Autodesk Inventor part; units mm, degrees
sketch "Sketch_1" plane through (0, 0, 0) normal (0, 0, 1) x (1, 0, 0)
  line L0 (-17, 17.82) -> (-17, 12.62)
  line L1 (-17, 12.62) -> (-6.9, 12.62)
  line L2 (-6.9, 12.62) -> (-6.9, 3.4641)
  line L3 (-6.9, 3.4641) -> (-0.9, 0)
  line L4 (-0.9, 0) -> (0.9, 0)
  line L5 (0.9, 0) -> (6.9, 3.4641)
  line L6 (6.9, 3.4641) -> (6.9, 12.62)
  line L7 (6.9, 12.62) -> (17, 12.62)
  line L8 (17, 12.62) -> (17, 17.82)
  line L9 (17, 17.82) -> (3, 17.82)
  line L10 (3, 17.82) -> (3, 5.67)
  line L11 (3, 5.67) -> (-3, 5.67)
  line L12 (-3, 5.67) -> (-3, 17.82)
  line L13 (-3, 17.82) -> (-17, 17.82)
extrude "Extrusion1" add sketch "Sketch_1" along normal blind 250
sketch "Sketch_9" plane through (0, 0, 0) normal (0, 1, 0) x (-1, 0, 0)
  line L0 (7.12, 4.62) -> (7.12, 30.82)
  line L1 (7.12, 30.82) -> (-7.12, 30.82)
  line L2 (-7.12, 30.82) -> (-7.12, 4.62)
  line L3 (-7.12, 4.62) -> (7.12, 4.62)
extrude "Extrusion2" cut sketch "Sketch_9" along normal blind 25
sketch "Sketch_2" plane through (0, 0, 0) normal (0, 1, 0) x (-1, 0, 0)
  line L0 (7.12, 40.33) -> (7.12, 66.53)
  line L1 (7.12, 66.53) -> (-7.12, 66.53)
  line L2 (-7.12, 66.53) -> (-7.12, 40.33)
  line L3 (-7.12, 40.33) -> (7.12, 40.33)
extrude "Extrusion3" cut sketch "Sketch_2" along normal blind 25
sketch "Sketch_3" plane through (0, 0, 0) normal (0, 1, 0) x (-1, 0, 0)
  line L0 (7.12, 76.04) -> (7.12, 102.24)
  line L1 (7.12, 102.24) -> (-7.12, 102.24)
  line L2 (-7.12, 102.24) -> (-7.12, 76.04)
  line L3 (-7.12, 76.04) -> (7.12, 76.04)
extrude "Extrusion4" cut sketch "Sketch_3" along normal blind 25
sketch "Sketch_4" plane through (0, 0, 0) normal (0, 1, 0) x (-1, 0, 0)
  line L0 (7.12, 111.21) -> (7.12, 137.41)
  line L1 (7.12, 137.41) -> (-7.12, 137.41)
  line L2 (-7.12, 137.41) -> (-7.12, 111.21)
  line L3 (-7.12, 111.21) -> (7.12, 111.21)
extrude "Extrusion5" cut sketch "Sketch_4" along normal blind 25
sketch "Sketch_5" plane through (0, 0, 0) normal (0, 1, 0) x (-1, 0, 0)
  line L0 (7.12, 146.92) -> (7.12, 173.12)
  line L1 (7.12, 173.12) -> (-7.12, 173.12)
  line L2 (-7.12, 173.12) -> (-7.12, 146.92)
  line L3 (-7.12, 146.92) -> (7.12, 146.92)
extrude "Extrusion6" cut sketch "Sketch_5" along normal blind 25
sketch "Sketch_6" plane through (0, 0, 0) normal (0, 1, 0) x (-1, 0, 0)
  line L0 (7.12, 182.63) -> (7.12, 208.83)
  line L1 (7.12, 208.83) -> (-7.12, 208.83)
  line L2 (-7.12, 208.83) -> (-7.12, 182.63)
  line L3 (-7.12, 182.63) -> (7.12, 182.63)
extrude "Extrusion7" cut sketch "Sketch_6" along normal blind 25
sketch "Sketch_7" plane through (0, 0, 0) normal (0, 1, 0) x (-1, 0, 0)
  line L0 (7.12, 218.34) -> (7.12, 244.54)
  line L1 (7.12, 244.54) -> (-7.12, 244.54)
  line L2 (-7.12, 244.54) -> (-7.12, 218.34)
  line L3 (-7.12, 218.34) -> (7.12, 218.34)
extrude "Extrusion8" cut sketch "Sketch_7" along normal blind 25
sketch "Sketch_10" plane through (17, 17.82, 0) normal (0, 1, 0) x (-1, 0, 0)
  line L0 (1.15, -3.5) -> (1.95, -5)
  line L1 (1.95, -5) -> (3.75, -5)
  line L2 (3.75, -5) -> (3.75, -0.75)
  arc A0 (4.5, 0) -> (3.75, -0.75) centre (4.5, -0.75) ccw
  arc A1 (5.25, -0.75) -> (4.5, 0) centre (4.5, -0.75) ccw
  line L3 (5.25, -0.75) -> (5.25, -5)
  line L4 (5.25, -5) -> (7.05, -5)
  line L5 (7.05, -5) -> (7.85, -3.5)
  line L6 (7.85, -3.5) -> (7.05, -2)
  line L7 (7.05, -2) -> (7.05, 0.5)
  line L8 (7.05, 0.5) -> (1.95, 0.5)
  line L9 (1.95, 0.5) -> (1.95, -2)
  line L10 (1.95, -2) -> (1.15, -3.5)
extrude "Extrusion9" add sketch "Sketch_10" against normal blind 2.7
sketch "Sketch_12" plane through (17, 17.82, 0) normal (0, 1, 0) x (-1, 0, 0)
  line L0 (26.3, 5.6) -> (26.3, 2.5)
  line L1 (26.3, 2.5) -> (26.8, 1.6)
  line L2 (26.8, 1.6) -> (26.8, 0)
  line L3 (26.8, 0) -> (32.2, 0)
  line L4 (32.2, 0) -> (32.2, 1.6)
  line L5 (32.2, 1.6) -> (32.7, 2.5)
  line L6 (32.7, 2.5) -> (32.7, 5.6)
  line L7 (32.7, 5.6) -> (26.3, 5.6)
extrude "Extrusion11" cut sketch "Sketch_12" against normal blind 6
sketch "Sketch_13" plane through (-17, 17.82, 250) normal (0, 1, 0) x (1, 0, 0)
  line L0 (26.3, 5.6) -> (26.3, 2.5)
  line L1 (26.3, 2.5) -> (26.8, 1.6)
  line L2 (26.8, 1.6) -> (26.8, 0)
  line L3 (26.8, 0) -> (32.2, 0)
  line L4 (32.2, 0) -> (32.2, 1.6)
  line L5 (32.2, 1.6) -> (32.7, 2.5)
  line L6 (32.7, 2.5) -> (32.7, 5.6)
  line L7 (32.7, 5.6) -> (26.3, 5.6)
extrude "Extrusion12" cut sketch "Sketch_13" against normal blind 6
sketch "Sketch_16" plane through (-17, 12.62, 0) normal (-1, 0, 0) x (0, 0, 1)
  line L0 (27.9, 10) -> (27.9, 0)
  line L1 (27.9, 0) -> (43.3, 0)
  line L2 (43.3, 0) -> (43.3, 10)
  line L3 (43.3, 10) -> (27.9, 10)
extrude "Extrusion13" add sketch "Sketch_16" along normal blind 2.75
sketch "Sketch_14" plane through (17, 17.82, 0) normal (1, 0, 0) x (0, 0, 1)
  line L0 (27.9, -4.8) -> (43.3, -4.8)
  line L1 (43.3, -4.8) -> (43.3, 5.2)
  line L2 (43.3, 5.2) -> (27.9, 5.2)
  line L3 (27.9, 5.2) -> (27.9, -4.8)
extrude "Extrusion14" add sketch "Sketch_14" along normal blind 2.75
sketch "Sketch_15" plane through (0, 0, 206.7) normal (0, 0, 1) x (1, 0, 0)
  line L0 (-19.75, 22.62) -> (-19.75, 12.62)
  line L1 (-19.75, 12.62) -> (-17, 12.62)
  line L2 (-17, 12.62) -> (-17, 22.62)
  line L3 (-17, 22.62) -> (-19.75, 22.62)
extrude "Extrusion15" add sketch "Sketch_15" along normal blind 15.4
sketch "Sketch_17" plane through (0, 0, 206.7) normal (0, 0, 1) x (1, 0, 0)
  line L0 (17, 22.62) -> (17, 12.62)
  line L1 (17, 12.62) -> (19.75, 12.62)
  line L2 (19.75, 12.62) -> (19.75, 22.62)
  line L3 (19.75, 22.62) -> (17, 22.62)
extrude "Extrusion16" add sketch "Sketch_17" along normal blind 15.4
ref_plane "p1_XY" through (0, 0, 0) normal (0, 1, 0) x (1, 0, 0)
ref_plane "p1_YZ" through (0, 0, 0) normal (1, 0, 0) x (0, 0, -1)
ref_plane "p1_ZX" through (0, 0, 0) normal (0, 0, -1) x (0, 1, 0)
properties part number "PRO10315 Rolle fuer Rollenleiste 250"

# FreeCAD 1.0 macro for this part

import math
import FreeCAD as App
import Part
import Sketcher

V = App.Vector
Q = App.Units.Quantity

doc = App.newDocument("Part")
params = doc.addObject("Spreadsheet::Sheet", "Params")
for row, (alias, value) in enumerate([
    ("sketch1_width", "14 mm"),
    ("sketch1_width2", "6 mm"),
    ("sketch1_width3", "10.1 mm"),
    ("sketch1_width4", "1.8 mm"),
    ("sketch1_height", "5.2 mm"),
    ("pad1_length", "250 mm"),
    ("sketch2_height", "26.2 mm"),
    ("sketch2_width", "14.24 mm"),
    ("pocket1_length", "25 mm"),
    ("sketch3_height", "26.2 mm"),
    ("sketch3_width", "14.24 mm"),
    ("pocket2_length", "25 mm"),
    ("sketch4_height", "26.2 mm"),
    ("sketch4_width", "14.24 mm"),
    ("pocket3_length", "25 mm"),
    ("sketch5_height", "26.2 mm"),
    ("sketch5_width", "14.24 mm"),
    ("pocket4_length", "25 mm"),
    ("sketch6_height", "26.2 mm"),
    ("sketch6_width", "14.24 mm"),
    ("pocket5_length", "25 mm"),
    ("sketch7_height", "26.2 mm"),
    ("sketch7_width", "14.24 mm"),
    ("pocket6_length", "25 mm"),
    ("sketch8_height", "26.2 mm"),
    ("sketch8_width", "14.24 mm"),
    ("pocket7_length", "25 mm"),
    ("sketch9_radius", "0.75 mm"),
    ("sketch9_width", "1.8 mm"),
    ("sketch9_height", "2.5 mm"),
    ("sketch9_length", "1.7 mm"),
    ("sketch9_height2", "4.25 mm"),
    ("pad2_length", "2.7 mm"),
    ("sketch10_width", "6.4 mm"),
    ("sketch10_width2", "5.4 mm"),
    ("sketch10_height", "3.1 mm"),
    ("sketch10_height2", "1.6 mm"),
    ("pocket8_length", "6 mm"),
    ("sketch11_width", "6.4 mm"),
    ("sketch11_width2", "5.4 mm"),
    ("sketch11_height", "3.1 mm"),
    ("sketch11_height2", "1.6 mm"),
    ("pocket9_length", "6 mm"),
    ("sketch12_width", "10 mm"),
    ("sketch12_height", "15.4 mm"),
    ("pad3_length", "2.75 mm"),
    ("sketch13_width", "10 mm"),
    ("sketch13_height", "15.4 mm"),
    ("pad4_length", "2.75 mm"),
    ("sketch14_height", "10 mm"),
    ("sketch14_width", "2.75 mm"),
    ("pad5_length", "15.4 mm"),
    ("sketch15_height", "10 mm"),
    ("sketch15_width", "2.75 mm"),
    ("pad6_length", "15.4 mm"),
], start=1):
    params.set(f"A{row}", alias)
    params.set(f"B{row}", "=" + value)
    params.setAlias(f"B{row}", alias)

body = doc.addObject("PartDesign::Body", "Body")

# Sketch on XY plane
sketch1 = body.newObject("Sketcher::SketchObject", "Sketch")
sketch1.AttachmentSupport = (doc.getObject("XY_Plane"), [""])
sketch1.MapMode = "FlatFace"
sketch1.addGeometry(Part.LineSegment(V(-3, 17.8, 0), V(-17, 17.8, 0)), False)
sketch1.addGeometry(Part.LineSegment(V(-17, 17.8, 0), V(-17, 12.6, 0)), False)
sketch1.addGeometry(Part.LineSegment(V(-17, 12.6, 0), V(-6.9, 12.6, 0)), False)
sketch1.addGeometry(Part.LineSegment(V(-6.9, 12.6, 0), V(-6.9, 3.5, 0)), False)
sketch1.addGeometry(Part.LineSegment(V(-6.9, 3.5, 0), V(-0.9, 0, 0)), False)
sketch1.addGeometry(Part.LineSegment(V(-0.9, 0, 0), V(0.9, 0, 0)), False)
sketch1.addGeometry(Part.LineSegment(V(0.9, 0, 0), V(6.9, 3.5, 0)), False)
sketch1.addGeometry(Part.LineSegment(V(6.9, 3.5, 0), V(6.9, 12.6, 0)), False)
sketch1.addGeometry(Part.LineSegment(V(6.9, 12.6, 0), V(17, 12.6, 0)), False)
sketch1.addGeometry(Part.LineSegment(V(17, 12.6, 0), V(17, 17.8, 0)), False)
sketch1.addGeometry(Part.LineSegment(V(17, 17.8, 0), V(3, 17.8, 0)), False)
sketch1.addGeometry(Part.LineSegment(V(3, 17.8, 0), V(3, 5.7, 0)), False)
sketch1.addGeometry(Part.LineSegment(V(3, 5.7, 0), V(-3, 5.7, 0)), False)
sketch1.addGeometry(Part.LineSegment(V(-3, 5.7, 0), V(-3, 17.8, 0)), False)
sketch1.addConstraint(Sketcher.Constraint("Coincident", 0, 2, 1, 1))
sketch1.addConstraint(Sketcher.Constraint("Coincident", 1, 2, 2, 1))
sketch1.addConstraint(Sketcher.Constraint("Coincident", 2, 2, 3, 1))
sketch1.addConstraint(Sketcher.Constraint("Coincident", 3, 2, 4, 1))
sketch1.addConstraint(Sketcher.Constraint("Coincident", 4, 2, 5, 1))
sketch1.addConstraint(Sketcher.Constraint("Coincident", 5, 2, 6, 1))
sketch1.addConstraint(Sketcher.Constraint("Coincident", 6, 2, 7, 1))
sketch1.addConstraint(Sketcher.Constraint("Coincident", 7, 2, 8, 1))
sketch1.addConstraint(Sketcher.Constraint("Coincident", 8, 2, 9, 1))
sketch1.addConstraint(Sketcher.Constraint("Coincident", 9, 2, 10, 1))
sketch1.addConstraint(Sketcher.Constraint("Coincident", 10, 2, 11, 1))
sketch1.addConstraint(Sketcher.Constraint("Coincident", 11, 2, 12, 1))
sketch1.addConstraint(Sketcher.Constraint("Coincident", 12, 2, 13, 1))
sketch1.addConstraint(Sketcher.Constraint("Coincident", 13, 2, 0, 1))
sketch1.addConstraint(Sketcher.Constraint("Horizontal", 0))
sketch1.addConstraint(Sketcher.Constraint("Vertical", 1))
sketch1.addConstraint(Sketcher.Constraint("Horizontal", 2))
sketch1.addConstraint(Sketcher.Constraint("Vertical", 3))
sketch1.addConstraint(Sketcher.Constraint("Horizontal", 5))
sketch1.addConstraint(Sketcher.Constraint("Vertical", 7))
sketch1.addConstraint(Sketcher.Constraint("Horizontal", 8))
sketch1.addConstraint(Sketcher.Constraint("Vertical", 9))
sketch1.addConstraint(Sketcher.Constraint("Horizontal", 10))
sketch1.addConstraint(Sketcher.Constraint("Vertical", 11))
sketch1.addConstraint(Sketcher.Constraint("Horizontal", 12))
sketch1.addConstraint(Sketcher.Constraint("Vertical", 13))
sketch1.addConstraint(Sketcher.Constraint("Symmetric", 4, 2, 5, 2, -1, 1))
sketch1.addConstraint(Sketcher.Constraint("Symmetric", 3, 2, 6, 2, -2))
sketch1.addConstraint(Sketcher.Constraint("Symmetric", 1, 2, 8, 2, -2))
sketch1.addConstraint(Sketcher.Constraint("Symmetric", 10, 2, 13, 2, -2))
sketch1.addConstraint(Sketcher.Constraint("DistanceX", 0, 2, 0, 1, 14.0))
sketch1.addConstraint(Sketcher.Constraint("DistanceX", 12, 2, 12, 1, 6.0))
sketch1.addConstraint(Sketcher.Constraint("Angle", 4, Q("-30 deg")))
sketch1.addConstraint(Sketcher.Constraint("DistanceX", 2, 1, 2, 2, 10.1))
sketch1.addConstraint(Sketcher.Constraint("DistanceX", 5, 1, 5, 2, 1.8))
sketch1.addConstraint(Sketcher.Constraint("DistanceY", 1, 2, 1, 1, 5.2))
sketch1.addConstraint(Sketcher.Constraint("DistanceY", 11, 2, 11, 1, 12.15))
sketch1.addConstraint(Sketcher.Constraint("DistanceY", 3, 2, 3, 1, 9.156))
sketch1.setExpression("Constraints[30]", "Params.sketch1_width")
sketch1.setExpression("Constraints[31]", "Params.sketch1_width2")
sketch1.setExpression("Constraints[33]", "Params.sketch1_width3")
sketch1.setExpression("Constraints[34]", "Params.sketch1_width4")
sketch1.setExpression("Constraints[35]", "Params.sketch1_height")
pad1 = body.newObject("PartDesign::Pad", "Pad")
pad1.Profile = sketch1
pad1.setExpression("Length", "Params.pad1_length")

# Sketch on XZ plane
sketch2 = body.newObject("Sketcher::SketchObject", "Sketch001")
sketch2.AttachmentSupport = (doc.getObject("XZ_Plane"), [""])
sketch2.MapMode = "FlatFace"
sketch2.addGeometry(Part.LineSegment(V(7, 5, 0), V(-7, 5, 0)), False)
sketch2.addGeometry(Part.LineSegment(V(-7, 5, 0), V(-7, 31, 0)), False)
sketch2.addGeometry(Part.LineSegment(V(-7, 31, 0), V(7, 31, 0)), False)
sketch2.addGeometry(Part.LineSegment(V(7, 31, 0), V(7, 5, 0)), False)
sketch2.addConstraint(Sketcher.Constraint("Coincident", 0, 2, 1, 1))
sketch2.addConstraint(Sketcher.Constraint("Coincident", 1, 2, 2, 1))
sketch2.addConstraint(Sketcher.Constraint("Coincident", 2, 2, 3, 1))
sketch2.addConstraint(Sketcher.Constraint("Coincident", 3, 2, 0, 1))
sketch2.addConstraint(Sketcher.Constraint("Horizontal", 0))
sketch2.addConstraint(Sketcher.Constraint("Vertical", 1))
sketch2.addConstraint(Sketcher.Constraint("Horizontal", 2))
sketch2.addConstraint(Sketcher.Constraint("Vertical", 3))
sketch2.addConstraint(Sketcher.Constraint("DistanceY", 1, 1, 1, 2, 26.2))
sketch2.addConstraint(Sketcher.Constraint("DistanceX", 0, 2, 0, 1, 14.24))
sketch2.addConstraint(Sketcher.Constraint("DistanceX", 0, 2, -1, 1, 7.12))
sketch2.addConstraint(Sketcher.Constraint("DistanceY", -1, 1, 0, 2, 4.62))
sketch2.setExpression("Constraints[8]", "Params.sketch2_height")
sketch2.setExpression("Constraints[9]", "Params.sketch2_width")
pocket1 = body.newObject("PartDesign::Pocket", "Pocket")
pocket1.Profile = sketch2
pocket1.setExpression("Length", "Params.pocket1_length")

# Sketch on XZ plane
sketch3 = body.newObject("Sketcher::SketchObject", "Sketch002")
sketch3.AttachmentSupport = (doc.getObject("XZ_Plane"), [""])
sketch3.MapMode = "FlatFace"
sketch3.addGeometry(Part.LineSegment(V(7, 40, 0), V(-7, 40, 0)), False)
sketch3.addGeometry(Part.LineSegment(V(-7, 40, 0), V(-7, 67, 0)), False)
sketch3.addGeometry(Part.LineSegment(V(-7, 67, 0), V(7, 67, 0)), False)
sketch3.addGeometry(Part.LineSegment(V(7, 67, 0), V(7, 40, 0)), False)
sketch3.addConstraint(Sketcher.Constraint("Coincident", 0, 2, 1, 1))
sketch3.addConstraint(Sketcher.Constraint("Coincident", 1, 2, 2, 1))
sketch3.addConstraint(Sketcher.Constraint("Coincident", 2, 2, 3, 1))
sketch3.addConstraint(Sketcher.Constraint("Coincident", 3, 2, 0, 1))
sketch3.addConstraint(Sketcher.Constraint("Horizontal", 0))
sketch3.addConstraint(Sketcher.Constraint("Vertical", 1))
sketch3.addConstraint(Sketcher.Constraint("Horizontal", 2))
sketch3.addConstraint(Sketcher.Constraint("Vertical", 3))
sketch3.addConstraint(Sketcher.Constraint("DistanceY", 1, 1, 1, 2, 26.2))
sketch3.addConstraint(Sketcher.Constraint("DistanceX", 0, 2, 0, 1, 14.24))
sketch3.addConstraint(Sketcher.Constraint("DistanceX", 0, 2, -1, 1, 7.12))
sketch3.addConstraint(Sketcher.Constraint("DistanceY", -1, 1, 0, 2, 40.33))
sketch3.setExpression("Constraints[8]", "Params.sketch3_height")
sketch3.setExpression("Constraints[9]", "Params.sketch3_width")
pocket2 = body.newObject("PartDesign::Pocket", "Pocket001")
pocket2.Profile = sketch3
pocket2.setExpression("Length", "Params.pocket2_length")

# Sketch on XZ plane
sketch4 = body.newObject("Sketcher::SketchObject", "Sketch003")
sketch4.AttachmentSupport = (doc.getObject("XZ_Plane"), [""])
sketch4.MapMode = "FlatFace"
sketch4.addGeometry(Part.LineSegment(V(7, 76, 0), V(-7, 76, 0)), False)
sketch4.addGeometry(Part.LineSegment(V(-7, 76, 0), V(-7, 102, 0)), False)
sketch4.addGeometry(Part.LineSegment(V(-7, 102, 0), V(7, 102, 0)), False)
sketch4.addGeometry(Part.LineSegment(V(7, 102, 0), V(7, 76, 0)), False)
sketch4.addConstraint(Sketcher.Constraint("Coincident", 0, 2, 1, 1))
sketch4.addConstraint(Sketcher.Constraint("Coincident", 1, 2, 2, 1))
sketch4.addConstraint(Sketcher.Constraint("Coincident", 2, 2, 3, 1))
sketch4.addConstraint(Sketcher.Constraint("Coincident", 3, 2, 0, 1))
sketch4.addConstraint(Sketcher.Constraint("Horizontal", 0))
sketch4.addConstraint(Sketcher.Constraint("Vertical", 1))
sketch4.addConstraint(Sketcher.Constraint("Horizontal", 2))
sketch4.addConstraint(Sketcher.Constraint("Vertical", 3))
sketch4.addConstraint(Sketcher.Constraint("DistanceY", 1, 1, 1, 2, 26.2))
sketch4.addConstraint(Sketcher.Constraint("DistanceX", 0, 2, 0, 1, 14.24))
sketch4.addConstraint(Sketcher.Constraint("DistanceX", 0, 2, -1, 1, 7.12))
sketch4.addConstraint(Sketcher.Constraint("DistanceY", -1, 1, 0, 2, 76.04))
sketch4.setExpression("Constraints[8]", "Params.sketch4_height")
sketch4.setExpression("Constraints[9]", "Params.sketch4_width")
pocket3 = body.newObject("PartDesign::Pocket", "Pocket002")
pocket3.Profile = sketch4
pocket3.setExpression("Length", "Params.pocket3_length")

# Sketch on XZ plane
sketch5 = body.newObject("Sketcher::SketchObject", "Sketch004")
sketch5.AttachmentSupport = (doc.getObject("XZ_Plane"), [""])
sketch5.MapMode = "FlatFace"
sketch5.addGeometry(Part.LineSegment(V(7, 111, 0), V(-7, 111, 0)), False)
sketch5.addGeometry(Part.LineSegment(V(-7, 111, 0), V(-7, 137, 0)), False)
sketch5.addGeometry(Part.LineSegment(V(-7, 137, 0), V(7, 137, 0)), False)
sketch5.addGeometry(Part.LineSegment(V(7, 137, 0), V(7, 111, 0)), False)
sketch5.addConstraint(Sketcher.Constraint("Coincident", 0, 2, 1, 1))
sketch5.addConstraint(Sketcher.Constraint("Coincident", 1, 2, 2, 1))
sketch5.addConstraint(Sketcher.Constraint("Coincident", 2, 2, 3, 1))
sketch5.addConstraint(Sketcher.Constraint("Coincident", 3, 2, 0, 1))
sketch5.addConstraint(Sketcher.Constraint("Horizontal", 0))
sketch5.addConstraint(Sketcher.Constraint("Vertical", 1))
sketch5.addConstraint(Sketcher.Constraint("Horizontal", 2))
sketch5.addConstraint(Sketcher.Constraint("Vertical", 3))
sketch5.addConstraint(Sketcher.Constraint("DistanceY", 1, 1, 1, 2, 26.2))
sketch5.addConstraint(Sketcher.Constraint("DistanceX", 0, 2, 0, 1, 14.24))
sketch5.addConstraint(Sketcher.Constraint("DistanceX", 0, 2, -1, 1, 7.12))
sketch5.addConstraint(Sketcher.Constraint("DistanceY", -1, 1, 0, 2, 111.21))
sketch5.setExpression("Constraints[8]", "Params.sketch5_height")
sketch5.setExpression("Constraints[9]", "Params.sketch5_width")
pocket4 = body.newObject("PartDesign::Pocket", "Pocket003")
pocket4.Profile = sketch5
pocket4.setExpression("Length", "Params.pocket4_length")

# Sketch on XZ plane
sketch6 = body.newObject("Sketcher::SketchObject", "Sketch005")
sketch6.AttachmentSupport = (doc.getObject("XZ_Plane"), [""])
sketch6.MapMode = "FlatFace"
sketch6.addGeometry(Part.LineSegment(V(7, 147, 0), V(-7, 147, 0)), False)
sketch6.addGeometry(Part.LineSegment(V(-7, 147, 0), V(-7, 173, 0)), False)
sketch6.addGeometry(Part.LineSegment(V(-7, 173, 0), V(7, 173, 0)), False)
sketch6.addGeometry(Part.LineSegment(V(7, 173, 0), V(7, 147, 0)), False)
sketch6.addConstraint(Sketcher.Constraint("Coincident", 0, 2, 1, 1))
sketch6.addConstraint(Sketcher.Constraint("Coincident", 1, 2, 2, 1))
sketch6.addConstraint(Sketcher.Constraint("Coincident", 2, 2, 3, 1))
sketch6.addConstraint(Sketcher.Constraint("Coincident", 3, 2, 0, 1))
sketch6.addConstraint(Sketcher.Constraint("Horizontal", 0))
sketch6.addConstraint(Sketcher.Constraint("Vertical", 1))
sketch6.addConstraint(Sketcher.Constraint("Horizontal", 2))
sketch6.addConstraint(Sketcher.Constraint("Vertical", 3))
sketch6.addConstraint(Sketcher.Constraint("DistanceY", 1, 1, 1, 2, 26.2))
sketch6.addConstraint(Sketcher.Constraint("DistanceX", 0, 2, 0, 1, 14.24))
sketch6.addConstraint(Sketcher.Constraint("DistanceX", 0, 2, -1, 1, 7.12))
sketch6.addConstraint(Sketcher.Constraint("DistanceY", -1, 1, 0, 2, 146.92))
sketch6.setExpression("Constraints[8]", "Params.sketch6_height")
sketch6.setExpression("Constraints[9]", "Params.sketch6_width")
pocket5 = body.newObject("PartDesign::Pocket", "Pocket004")
pocket5.Profile = sketch6
pocket5.setExpression("Length", "Params.pocket5_length")

# Sketch on XZ plane
sketch7 = body.newObject("Sketcher::SketchObject", "Sketch006")
sketch7.AttachmentSupport = (doc.getObject("XZ_Plane"), [""])
sketch7.MapMode = "FlatFace"
sketch7.addGeometry(Part.LineSegment(V(7, 183, 0), V(-7, 183, 0)), False)
sketch7.addGeometry(Part.LineSegment(V(-7, 183, 0), V(-7, 209, 0)), False)
sketch7.addGeometry(Part.LineSegment(V(-7, 209, 0), V(7, 209, 0)), False)
sketch7.addGeometry(Part.LineSegment(V(7, 209, 0), V(7, 183, 0)), False)
sketch7.addConstraint(Sketcher.Constraint("Coincident", 0, 2, 1, 1))
sketch7.addConstraint(Sketcher.Constraint("Coincident", 1, 2, 2, 1))
sketch7.addConstraint(Sketcher.Constraint("Coincident", 2, 2, 3, 1))
sketch7.addConstraint(Sketcher.Constraint("Coincident", 3, 2, 0, 1))
sketch7.addConstraint(Sketcher.Constraint("Horizontal", 0))
sketch7.addConstraint(Sketcher.Constraint("Vertical", 1))
sketch7.addConstraint(Sketcher.Constraint("Horizontal", 2))
sketch7.addConstraint(Sketcher.Constraint("Vertical", 3))
sketch7.addConstraint(Sketcher.Constraint("DistanceY", 1, 1, 1, 2, 26.2))
sketch7.addConstraint(Sketcher.Constraint("DistanceX", 0, 2, 0, 1, 14.24))
sketch7.addConstraint(Sketcher.Constraint("DistanceX", 0, 2, -1, 1, 7.12))
sketch7.addConstraint(Sketcher.Constraint("DistanceY", -1, 1, 0, 2, 182.63))
sketch7.setExpression("Constraints[8]", "Params.sketch7_height")
sketch7.setExpression("Constraints[9]", "Params.sketch7_width")
pocket6 = body.newObject("PartDesign::Pocket", "Pocket005")
pocket6.Profile = sketch7
pocket6.setExpression("Length", "Params.pocket6_length")

# Sketch on XZ plane
sketch8 = body.newObject("Sketcher::SketchObject", "Sketch007")
sketch8.AttachmentSupport = (doc.getObject("XZ_Plane"), [""])
sketch8.MapMode = "FlatFace"
sketch8.addGeometry(Part.LineSegment(V(7, 218, 0), V(-7, 218, 0)), False)
sketch8.addGeometry(Part.LineSegment(V(-7, 218, 0), V(-7, 245, 0)), False)
sketch8.addGeometry(Part.LineSegment(V(-7, 245, 0), V(7, 245, 0)), False)
sketch8.addGeometry(Part.LineSegment(V(7, 245, 0), V(7, 218, 0)), False)
sketch8.addConstraint(Sketcher.Constraint("Coincident", 0, 2, 1, 1))
sketch8.addConstraint(Sketcher.Constraint("Coincident", 1, 2, 2, 1))
sketch8.addConstraint(Sketcher.Constraint("Coincident", 2, 2, 3, 1))
sketch8.addConstraint(Sketcher.Constraint("Coincident", 3, 2, 0, 1))
sketch8.addConstraint(Sketcher.Constraint("Horizontal", 0))
sketch8.addConstraint(Sketcher.Constraint("Vertical", 1))
sketch8.addConstraint(Sketcher.Constraint("Horizontal", 2))
sketch8.addConstraint(Sketcher.Constraint("Vertical", 3))
sketch8.addConstraint(Sketcher.Constraint("DistanceY", 1, 1, 1, 2, 26.2))
sketch8.addConstraint(Sketcher.Constraint("DistanceX", 0, 2, 0, 1, 14.24))
sketch8.addConstraint(Sketcher.Constraint("DistanceX", 0, 2, -1, 1, 7.12))
sketch8.addConstraint(Sketcher.Constraint("DistanceY", -1, 1, 0, 2, 218.34))
sketch8.setExpression("Constraints[8]", "Params.sketch8_height")
sketch8.setExpression("Constraints[9]", "Params.sketch8_width")
pocket7 = body.newObject("PartDesign::Pocket", "Pocket006")
pocket7.Profile = sketch8
pocket7.setExpression("Length", "Params.pocket7_length")

# Sketch on XZ plane
sketch9 = body.newObject("Sketcher::SketchObject", "Sketch008")
sketch9.AttachmentSupport = (doc.getObject("XZ_Plane"), [""])
sketch9.MapMode = "FlatFace"
sketch9.AttachmentOffset = App.Placement(V(0, 0, -17.82), App.Rotation())
sketch9.addGeometry(Part.LineSegment(V(15.1, -2, 0), V(15.8, -3.5, 0)), False)
sketch9.addGeometry(Part.LineSegment(V(15.8, -3.5, 0), V(15.1, -5, 0)), False)
sketch9.addGeometry(Part.LineSegment(V(15.1, -5, 0), V(13.2, -5, 0)), False)
sketch9.addGeometry(Part.LineSegment(V(13.2, -5, 0), V(13.2, -0.8, 0)), False)
sketch9.addGeometry(Part.ArcOfCircle(Part.Circle(V(12.5, -0.8, 0), V(0, 0, 1), 0.8), math.radians(0), math.radians(180)), False)
sketch9.addGeometry(Part.LineSegment(V(11.8, -0.8, 0), V(11.8, -5, 0)), False)
sketch9.addGeometry(Part.LineSegment(V(11.8, -5, 0), V(9.9, -5, 0)), False)
sketch9.addGeometry(Part.LineSegment(V(9.9, -5, 0), V(9.2, -3.5, 0)), False)
sketch9.addGeometry(Part.LineSegment(V(9.2, -3.5, 0), V(9.9, -2, 0)), False)
sketch9.addGeometry(Part.LineSegment(V(9.9, -2, 0), V(9.9, 0.5, 0)), False)
sketch9.addGeometry(Part.LineSegment(V(9.9, 0.5, 0), V(15.1, 0.5, 0)), False)
sketch9.addGeometry(Part.LineSegment(V(15.1, 0.5, 0), V(15.1, -2, 0)), False)
sketch9.addConstraint(Sketcher.Constraint("Coincident", 0, 2, 1, 1))
sketch9.addConstraint(Sketcher.Constraint("Coincident", 1, 2, 2, 1))
sketch9.addConstraint(Sketcher.Constraint("Coincident", 2, 2, 3, 1))
sketch9.addConstraint(Sketcher.Constraint("Tangent", 3, 2, 4, 1))
sketch9.addConstraint(Sketcher.Constraint("Tangent", 4, 2, 5, 1))
sketch9.addConstraint(Sketcher.Constraint("Coincident", 5, 2, 6, 1))
sketch9.addConstraint(Sketcher.Constraint("Coincident", 6, 2, 7, 1))
sketch9.addConstraint(Sketcher.Constraint("Coincident", 7, 2, 8, 1))
sketch9.addConstraint(Sketcher.Constraint("Coincident", 8, 2, 9, 1))
sketch9.addConstraint(Sketcher.Constraint("Coincident", 9, 2, 10, 1))
sketch9.addConstraint(Sketcher.Constraint("Coincident", 10, 2, 11, 1))
sketch9.addConstraint(Sketcher.Constraint("Coincident", 11, 2, 0, 1))
sketch9.addConstraint(Sketcher.Constraint("Horizontal", 2))
sketch9.addConstraint(Sketcher.Constraint("Vertical", 3))
sketch9.addConstraint(Sketcher.Constraint("Vertical", 5))
sketch9.addConstraint(Sketcher.Constraint("Horizontal", 6))
sketch9.addConstraint(Sketcher.Constraint("Vertical", 9))
sketch9.addConstraint(Sketcher.Constraint("Horizontal", 10))
sketch9.addConstraint(Sketcher.Constraint("Vertical", 11))
sketch9.addConstraint(Sketcher.Constraint("Parallel", 0, 7))
sketch9.addConstraint(Sketcher.Constraint("Parallel", 1, 8))
sketch9.addConstraint(Sketcher.Constraint("Horizontal", 2, 2, 5, 2))
sketch9.addConstraint(Sketcher.Constraint("Horizontal", 0, 2, 7, 2))
sketch9.addConstraint(Sketcher.Constraint("Horizontal", 8, 2, 11, 2))
sketch9.addConstraint(Sketcher.Constraint("Vertical", 6, 2, 8, 2))
sketch9.addConstraint(Sketcher.Constraint("Vertical", 1, 2, 10, 2))
sketch9.addConstraint(Sketcher.Constraint("Equal", 2, 6))
sketch9.addConstraint(Sketcher.Constraint("Radius", 4, 0.75))
sketch9.addConstraint(Sketcher.Constraint("DistanceX", 2, 2, 2, 1, 1.8))
sketch9.addConstraint(Sketcher.Constraint("DistanceY", 9, 1, 9, 2, 2.5))
sketch9.addConstraint(Sketcher.Constraint("DistanceY", 1, 2, -1, 1, 5.0))
sketch9.addConstraint(Sketcher.Constraint("DistanceY", 8, 2, -1, 1, 2.0))
sketch9.addConstraint(Sketcher.Constraint("Distance", 0, 1.7))
sketch9.addConstraint(Sketcher.Constraint("DistanceY", 3, 1, 3, 2, 4.25))
sketch9.addConstraint(Sketcher.Constraint("DistanceX", -1, 1, 4, 3, 12.5))
sketch9.setExpression("Constraints[27]", "Params.sketch9_radius")
sketch9.setExpression("Constraints[28]", "Params.sketch9_width")
sketch9.setExpression("Constraints[29]", "Params.sketch9_height")
sketch9.setExpression("Constraints[32]", "Params.sketch9_length")
sketch9.setExpression("Constraints[33]", "Params.sketch9_height2")
pad2 = body.newObject("PartDesign::Pad", "Pad001")
pad2.Profile = sketch9
pad2.setExpression("Length", "Params.pad2_length")

# Sketch on XZ plane
sketch10 = body.newObject("Sketcher::SketchObject", "Sketch009")
sketch10.AttachmentSupport = (doc.getObject("XZ_Plane"), [""])
sketch10.MapMode = "FlatFace"
sketch10.AttachmentOffset = App.Placement(V(0, 0, -17.82), App.Rotation())
sketch10.addGeometry(Part.LineSegment(V(-15.7, 5.6, 0), V(-9.3, 5.6, 0)), False)
sketch10.addGeometry(Part.LineSegment(V(-9.3, 5.6, 0), V(-9.3, 2.5, 0)), False)
sketch10.addGeometry(Part.LineSegment(V(-9.3, 2.5, 0), V(-9.8, 1.6, 0)), False)
sketch10.addGeometry(Part.LineSegment(V(-9.8, 1.6, 0), V(-9.8, 0, 0)), False)
sketch10.addGeometry(Part.LineSegment(V(-9.8, 0, 0), V(-15.2, 0, 0)), False)
sketch10.addGeometry(Part.LineSegment(V(-15.2, 0, 0), V(-15.2, 1.6, 0)), False)
sketch10.addGeometry(Part.LineSegment(V(-15.2, 1.6, 0), V(-15.7, 2.5, 0)), False)
sketch10.addGeometry(Part.LineSegment(V(-15.7, 2.5, 0), V(-15.7, 5.6, 0)), False)
sketch10.addConstraint(Sketcher.Constraint("Coincident", 0, 2, 1, 1))
sketch10.addConstraint(Sketcher.Constraint("Coincident", 1, 2, 2, 1))
sketch10.addConstraint(Sketcher.Constraint("Coincident", 2, 2, 3, 1))
sketch10.addConstraint(Sketcher.Constraint("Coincident", 3, 2, 4, 1))
sketch10.addConstraint(Sketcher.Constraint("Coincident", 4, 2, 5, 1))
sketch10.addConstraint(Sketcher.Constraint("Coincident", 5, 2, 6, 1))
sketch10.addConstraint(Sketcher.Constraint("Coincident", 6, 2, 7, 1))
sketch10.addConstraint(Sketcher.Constraint("Coincident", 7, 2, 0, 1))
sketch10.addConstraint(Sketcher.Constraint("Horizontal", 0))
sketch10.addConstraint(Sketcher.Constraint("Vertical", 1))
sketch10.addConstraint(Sketcher.Constraint("Vertical", 3))
sketch10.addConstraint(Sketcher.Constraint("Horizontal", 4))
sketch10.addConstraint(Sketcher.Constraint("Vertical", 5))
sketch10.addConstraint(Sketcher.Constraint("Vertical", 7))
sketch10.addConstraint(Sketcher.Constraint("PointOnObject", 3, 2, -1))
sketch10.addConstraint(Sketcher.Constraint("Horizontal", 2, 2, 5, 2))
sketch10.addConstraint(Sketcher.Constraint("Horizontal", 1, 2, 6, 2))
sketch10.addConstraint(Sketcher.Constraint("Equal", 2, 6))
sketch10.addConstraint(Sketcher.Constraint("DistanceX", 0, 1, 0, 2, 6.4))
sketch10.addConstraint(Sketcher.Constraint("DistanceX", 4, 2, 4, 1, 5.4))
sketch10.addConstraint(Sketcher.Constraint("DistanceY", 1, 2, 1, 1, 3.1))
sketch10.addConstraint(Sketcher.Constraint("DistanceY", 3, 2, 3, 1, 1.6))
sketch10.addConstraint(Sketcher.Constraint("DistanceY", 2, 2, 0, 2, 4.0))
sketch10.addConstraint(Sketcher.Constraint("DistanceX", 0, 2, -1, 1, 9.3))
sketch10.setExpression("Constraints[18]", "Params.sketch10_width")
sketch10.setExpression("Constraints[19]", "Params.sketch10_width2")
sketch10.setExpression("Constraints[20]", "Params.sketch10_height")
sketch10.setExpression("Constraints[21]", "Params.sketch10_height2")
pocket8 = body.newObject("PartDesign::Pocket", "Pocket007")
pocket8.Profile = sketch10
pocket8.setExpression("Length", "Params.pocket8_length")
pocket8.Reversed = True

# Sketch on XZ plane
sketch11 = body.newObject("Sketcher::SketchObject", "Sketch010")
sketch11.AttachmentSupport = (doc.getObject("XZ_Plane"), [""])
sketch11.MapMode = "FlatFace"
sketch11.AttachmentOffset = App.Placement(V(0, 0, -17.82), App.Rotation())
sketch11.addGeometry(Part.LineSegment(V(15.7, 244.4, 0), V(9.3, 244.4, 0)), False)
sketch11.addGeometry(Part.LineSegment(V(9.3, 244.4, 0), V(9.3, 247.5, 0)), False)
sketch11.addGeometry(Part.LineSegment(V(9.3, 247.5, 0), V(9.8, 248.4, 0)), False)
sketch11.addGeometry(Part.LineSegment(V(9.8, 248.4, 0), V(9.8, 250, 0)), False)
sketch11.addGeometry(Part.LineSegment(V(9.8, 250, 0), V(15.2, 250, 0)), False)
sketch11.addGeometry(Part.LineSegment(V(15.2, 250, 0), V(15.2, 248.4, 0)), False)
sketch11.addGeometry(Part.LineSegment(V(15.2, 248.4, 0), V(15.7, 247.5, 0)), False)
sketch11.addGeometry(Part.LineSegment(V(15.7, 247.5, 0), V(15.7, 244.4, 0)), False)
sketch11.addConstraint(Sketcher.Constraint("Coincident", 0, 2, 1, 1))
sketch11.addConstraint(Sketcher.Constraint("Coincident", 1, 2, 2, 1))
sketch11.addConstraint(Sketcher.Constraint("Coincident", 2, 2, 3, 1))
sketch11.addConstraint(Sketcher.Constraint("Coincident", 3, 2, 4, 1))
sketch11.addConstraint(Sketcher.Constraint("Coincident", 4, 2, 5, 1))
sketch11.addConstraint(Sketcher.Constraint("Coincident", 5, 2, 6, 1))
sketch11.addConstraint(Sketcher.Constraint("Coincident", 6, 2, 7, 1))
sketch11.addConstraint(Sketcher.Constraint("Coincident", 7, 2, 0, 1))
sketch11.addConstraint(Sketcher.Constraint("Horizontal", 0))
sketch11.addConstraint(Sketcher.Constraint("Vertical", 1))
sketch11.addConstraint(Sketcher.Constraint("Vertical", 3))
sketch11.addConstraint(Sketcher.Constraint("Horizontal", 4))
sketch11.addConstraint(Sketcher.Constraint("Vertical", 5))
sketch11.addConstraint(Sketcher.Constraint("Vertical", 7))
sketch11.addConstraint(Sketcher.Constraint("Horizontal", 2, 2, 5, 2))
sketch11.addConstraint(Sketcher.Constraint("Horizontal", 1, 2, 6, 2))
sketch11.addConstraint(Sketcher.Constraint("Equal", 2, 6))
sketch11.addConstraint(Sketcher.Constraint("DistanceX", 0, 2, 0, 1, 6.4))
sketch11.addConstraint(Sketcher.Constraint("DistanceX", 4, 1, 4, 2, 5.4))
sketch11.addConstraint(Sketcher.Constraint("DistanceY", 1, 1, 1, 2, 3.1))
sketch11.addConstraint(Sketcher.Constraint("DistanceY", 3, 1, 3, 2, 1.6))
sketch11.addConstraint(Sketcher.Constraint("DistanceY", -1, 1, 3, 2, 250.0))
sketch11.addConstraint(Sketcher.Constraint("DistanceY", 0, 2, 2, 2, 4.0))
sketch11.addConstraint(Sketcher.Constraint("DistanceX", -1, 1, 0, 2, 9.3))
sketch11.setExpression("Constraints[17]", "Params.sketch11_width")
sketch11.setExpression("Constraints[18]", "Params.sketch11_width2")
sketch11.setExpression("Constraints[19]", "Params.sketch11_height")
sketch11.setExpression("Constraints[20]", "Params.sketch11_height2")
pocket9 = body.newObject("PartDesign::Pocket", "Pocket008")
pocket9.Profile = sketch11
pocket9.setExpression("Length", "Params.pocket9_length")
pocket9.Reversed = True

# Sketch on YZ plane
sketch12 = body.newObject("Sketcher::SketchObject", "Sketch011")
sketch12.AttachmentSupport = (doc.getObject("YZ_Plane"), [""])
sketch12.MapMode = "FlatFace"
sketch12.AttachmentOffset = App.Placement(V(0, 0, -17), App.Rotation())
sketch12.addGeometry(Part.LineSegment(V(23, 43, 0), V(23, 28, 0)), False)
sketch12.addGeometry(Part.LineSegment(V(23, 28, 0), V(13, 28, 0)), False)
sketch12.addGeometry(Part.LineSegment(V(13, 28, 0), V(13, 43, 0)), False)
sketch12.addGeometry(Part.LineSegment(V(13, 43, 0), V(23, 43, 0)), False)
sketch12.addConstraint(Sketcher.Constraint("Coincident", 0, 2, 1, 1))
sketch12.addConstraint(Sketcher.Constraint("Coincident", 1, 2, 2, 1))
sketch12.addConstraint(Sketcher.Constraint("Coincident", 2, 2, 3, 1))
sketch12.addConstraint(Sketcher.Constraint("Coincident", 3, 2, 0, 1))
sketch12.addConstraint(Sketcher.Constraint("Vertical", 0))
sketch12.addConstraint(Sketcher.Constraint("Horizontal", 1))
sketch12.addConstraint(Sketcher.Constraint("Vertical", 2))
sketch12.addConstraint(Sketcher.Constraint("Horizontal", 3))
sketch12.addConstraint(Sketcher.Constraint("DistanceX", 1, 2, 1, 1, 10.0))
sketch12.addConstraint(Sketcher.Constraint("DistanceY", 0, 2, 0, 1, 15.4))
sketch12.addConstraint(Sketcher.Constraint("DistanceY", -1, 1, 0, 2, 27.9))
sketch12.addConstraint(Sketcher.Constraint("DistanceX", -1, 1, 0, 2, 22.62))
sketch12.setExpression("Constraints[8]", "Params.sketch12_width")
sketch12.setExpression("Constraints[9]", "Params.sketch12_height")
pad3 = body.newObject("PartDesign::Pad", "Pad002")
pad3.Profile = sketch12
pad3.setExpression("Length", "Params.pad3_length")
pad3.Reversed = True

# Sketch on YZ plane
sketch13 = body.newObject("Sketcher::SketchObject", "Sketch012")
sketch13.AttachmentSupport = (doc.getObject("YZ_Plane"), [""])
sketch13.MapMode = "FlatFace"
sketch13.AttachmentOffset = App.Placement(V(0, 0, 17), App.Rotation())
sketch13.addGeometry(Part.LineSegment(V(13, 28, 0), V(23, 28, 0)), False)
sketch13.addGeometry(Part.LineSegment(V(23, 28, 0), V(23, 43, 0)), False)
sketch13.addGeometry(Part.LineSegment(V(23, 43, 0), V(13, 43, 0)), False)
sketch13.addGeometry(Part.LineSegment(V(13, 43, 0), V(13, 28, 0)), False)
sketch13.addConstraint(Sketcher.Constraint("Coincident", 0, 2, 1, 1))
sketch13.addConstraint(Sketcher.Constraint("Coincident", 1, 2, 2, 1))
sketch13.addConstraint(Sketcher.Constraint("Coincident", 2, 2, 3, 1))
sketch13.addConstraint(Sketcher.Constraint("Coincident", 3, 2, 0, 1))
sketch13.addConstraint(Sketcher.Constraint("Horizontal", 0))
sketch13.addConstraint(Sketcher.Constraint("Vertical", 1))
sketch13.addConstraint(Sketcher.Constraint("Horizontal", 2))
sketch13.addConstraint(Sketcher.Constraint("Vertical", 3))
sketch13.addConstraint(Sketcher.Constraint("DistanceX", 0, 1, 0, 2, 10.0))
sketch13.addConstraint(Sketcher.Constraint("DistanceY", 1, 1, 1, 2, 15.4))
sketch13.addConstraint(Sketcher.Constraint("DistanceY", -1, 1, 0, 2, 27.9))
sketch13.addConstraint(Sketcher.Constraint("DistanceX", -1, 1, 0, 2, 22.62))
sketch13.setExpression("Constraints[8]", "Params.sketch13_width")
sketch13.setExpression("Constraints[9]", "Params.sketch13_height")
pad4 = body.newObject("PartDesign::Pad", "Pad003")
pad4.Profile = sketch13
pad4.setExpression("Length", "Params.pad4_length")

# Sketch on XY plane
sketch14 = body.newObject("Sketcher::SketchObject", "Sketch013")
sketch14.AttachmentSupport = (doc.getObject("XY_Plane"), [""])
sketch14.MapMode = "FlatFace"
sketch14.AttachmentOffset = App.Placement(V(0, 0, 206.7), App.Rotation())
sketch14.addGeometry(Part.LineSegment(V(-17, 22.6, 0), V(-19.8, 22.6, 0)), False)
sketch14.addGeometry(Part.LineSegment(V(-19.8, 22.6, 0), V(-19.8, 12.6, 0)), False)
sketch14.addGeometry(Part.LineSegment(V(-19.8, 12.6, 0), V(-17, 12.6, 0)), False)
sketch14.addGeometry(Part.LineSegment(V(-17, 12.6, 0), V(-17, 22.6, 0)), False)
sketch14.addConstraint(Sketcher.Constraint("Coincident", 0, 2, 1, 1))
sketch14.addConstraint(Sketcher.Constraint("Coincident", 1, 2, 2, 1))
sketch14.addConstraint(Sketcher.Constraint("Coincident", 2, 2, 3, 1))
sketch14.addConstraint(Sketcher.Constraint("Coincident", 3, 2, 0, 1))
sketch14.addConstraint(Sketcher.Constraint("Horizontal", 0))
sketch14.addConstraint(Sketcher.Constraint("Vertical", 1))
sketch14.addConstraint(Sketcher.Constraint("Horizontal", 2))
sketch14.addConstraint(Sketcher.Constraint("Vertical", 3))
sketch14.addConstraint(Sketcher.Constraint("DistanceY", 1, 2, 1, 1, 10.0))
sketch14.addConstraint(Sketcher.Constraint("DistanceX", 2, 2, -1, 1, 17.0))
sketch14.addConstraint(Sketcher.Constraint("DistanceX", 0, 2, 0, 1, 2.75))
sketch14.addConstraint(Sketcher.Constraint("DistanceY", -1, 1, 0, 2, 22.62))
sketch14.setExpression("Constraints[8]", "Params.sketch14_height")
sketch14.setExpression("Constraints[10]", "Params.sketch14_width")
pad5 = body.newObject("PartDesign::Pad", "Pad004")
pad5.Profile = sketch14
pad5.setExpression("Length", "Params.pad5_length")

# Sketch on XY plane
sketch15 = body.newObject("Sketcher::SketchObject", "Sketch014")
sketch15.AttachmentSupport = (doc.getObject("XY_Plane"), [""])
sketch15.MapMode = "FlatFace"
sketch15.AttachmentOffset = App.Placement(V(0, 0, 206.7), App.Rotation())
sketch15.addGeometry(Part.LineSegment(V(19.8, 22.6, 0), V(17, 22.6, 0)), False)
sketch15.addGeometry(Part.LineSegment(V(17, 22.6, 0), V(17, 12.6, 0)), False)
sketch15.addGeometry(Part.LineSegment(V(17, 12.6, 0), V(19.8, 12.6, 0)), False)
sketch15.addGeometry(Part.LineSegment(V(19.8, 12.6, 0), V(19.8, 22.6, 0)), False)
sketch15.addConstraint(Sketcher.Constraint("Coincident", 0, 2, 1, 1))
sketch15.addConstraint(Sketcher.Constraint("Coincident", 1, 2, 2, 1))
sketch15.addConstraint(Sketcher.Constraint("Coincident", 2, 2, 3, 1))
sketch15.addConstraint(Sketcher.Constraint("Coincident", 3, 2, 0, 1))
sketch15.addConstraint(Sketcher.Constraint("Horizontal", 0))
sketch15.addConstraint(Sketcher.Constraint("Vertical", 1))
sketch15.addConstraint(Sketcher.Constraint("Horizontal", 2))
sketch15.addConstraint(Sketcher.Constraint("Vertical", 3))
sketch15.addConstraint(Sketcher.Constraint("DistanceY", 1, 2, 1, 1, 10.0))
sketch15.addConstraint(Sketcher.Constraint("DistanceX", -1, 1, 0, 2, 17.0))
sketch15.addConstraint(Sketcher.Constraint("DistanceX", 0, 2, 0, 1, 2.75))
sketch15.addConstraint(Sketcher.Constraint("DistanceY", -1, 1, 0, 2, 22.62))
sketch15.setExpression("Constraints[8]", "Params.sketch15_height")
sketch15.setExpression("Constraints[10]", "Params.sketch15_width")
pad6 = body.newObject("PartDesign::Pad", "Pad005")
pad6.Profile = sketch15
pad6.setExpression("Length", "Params.pad6_length")

doc.recompute()
